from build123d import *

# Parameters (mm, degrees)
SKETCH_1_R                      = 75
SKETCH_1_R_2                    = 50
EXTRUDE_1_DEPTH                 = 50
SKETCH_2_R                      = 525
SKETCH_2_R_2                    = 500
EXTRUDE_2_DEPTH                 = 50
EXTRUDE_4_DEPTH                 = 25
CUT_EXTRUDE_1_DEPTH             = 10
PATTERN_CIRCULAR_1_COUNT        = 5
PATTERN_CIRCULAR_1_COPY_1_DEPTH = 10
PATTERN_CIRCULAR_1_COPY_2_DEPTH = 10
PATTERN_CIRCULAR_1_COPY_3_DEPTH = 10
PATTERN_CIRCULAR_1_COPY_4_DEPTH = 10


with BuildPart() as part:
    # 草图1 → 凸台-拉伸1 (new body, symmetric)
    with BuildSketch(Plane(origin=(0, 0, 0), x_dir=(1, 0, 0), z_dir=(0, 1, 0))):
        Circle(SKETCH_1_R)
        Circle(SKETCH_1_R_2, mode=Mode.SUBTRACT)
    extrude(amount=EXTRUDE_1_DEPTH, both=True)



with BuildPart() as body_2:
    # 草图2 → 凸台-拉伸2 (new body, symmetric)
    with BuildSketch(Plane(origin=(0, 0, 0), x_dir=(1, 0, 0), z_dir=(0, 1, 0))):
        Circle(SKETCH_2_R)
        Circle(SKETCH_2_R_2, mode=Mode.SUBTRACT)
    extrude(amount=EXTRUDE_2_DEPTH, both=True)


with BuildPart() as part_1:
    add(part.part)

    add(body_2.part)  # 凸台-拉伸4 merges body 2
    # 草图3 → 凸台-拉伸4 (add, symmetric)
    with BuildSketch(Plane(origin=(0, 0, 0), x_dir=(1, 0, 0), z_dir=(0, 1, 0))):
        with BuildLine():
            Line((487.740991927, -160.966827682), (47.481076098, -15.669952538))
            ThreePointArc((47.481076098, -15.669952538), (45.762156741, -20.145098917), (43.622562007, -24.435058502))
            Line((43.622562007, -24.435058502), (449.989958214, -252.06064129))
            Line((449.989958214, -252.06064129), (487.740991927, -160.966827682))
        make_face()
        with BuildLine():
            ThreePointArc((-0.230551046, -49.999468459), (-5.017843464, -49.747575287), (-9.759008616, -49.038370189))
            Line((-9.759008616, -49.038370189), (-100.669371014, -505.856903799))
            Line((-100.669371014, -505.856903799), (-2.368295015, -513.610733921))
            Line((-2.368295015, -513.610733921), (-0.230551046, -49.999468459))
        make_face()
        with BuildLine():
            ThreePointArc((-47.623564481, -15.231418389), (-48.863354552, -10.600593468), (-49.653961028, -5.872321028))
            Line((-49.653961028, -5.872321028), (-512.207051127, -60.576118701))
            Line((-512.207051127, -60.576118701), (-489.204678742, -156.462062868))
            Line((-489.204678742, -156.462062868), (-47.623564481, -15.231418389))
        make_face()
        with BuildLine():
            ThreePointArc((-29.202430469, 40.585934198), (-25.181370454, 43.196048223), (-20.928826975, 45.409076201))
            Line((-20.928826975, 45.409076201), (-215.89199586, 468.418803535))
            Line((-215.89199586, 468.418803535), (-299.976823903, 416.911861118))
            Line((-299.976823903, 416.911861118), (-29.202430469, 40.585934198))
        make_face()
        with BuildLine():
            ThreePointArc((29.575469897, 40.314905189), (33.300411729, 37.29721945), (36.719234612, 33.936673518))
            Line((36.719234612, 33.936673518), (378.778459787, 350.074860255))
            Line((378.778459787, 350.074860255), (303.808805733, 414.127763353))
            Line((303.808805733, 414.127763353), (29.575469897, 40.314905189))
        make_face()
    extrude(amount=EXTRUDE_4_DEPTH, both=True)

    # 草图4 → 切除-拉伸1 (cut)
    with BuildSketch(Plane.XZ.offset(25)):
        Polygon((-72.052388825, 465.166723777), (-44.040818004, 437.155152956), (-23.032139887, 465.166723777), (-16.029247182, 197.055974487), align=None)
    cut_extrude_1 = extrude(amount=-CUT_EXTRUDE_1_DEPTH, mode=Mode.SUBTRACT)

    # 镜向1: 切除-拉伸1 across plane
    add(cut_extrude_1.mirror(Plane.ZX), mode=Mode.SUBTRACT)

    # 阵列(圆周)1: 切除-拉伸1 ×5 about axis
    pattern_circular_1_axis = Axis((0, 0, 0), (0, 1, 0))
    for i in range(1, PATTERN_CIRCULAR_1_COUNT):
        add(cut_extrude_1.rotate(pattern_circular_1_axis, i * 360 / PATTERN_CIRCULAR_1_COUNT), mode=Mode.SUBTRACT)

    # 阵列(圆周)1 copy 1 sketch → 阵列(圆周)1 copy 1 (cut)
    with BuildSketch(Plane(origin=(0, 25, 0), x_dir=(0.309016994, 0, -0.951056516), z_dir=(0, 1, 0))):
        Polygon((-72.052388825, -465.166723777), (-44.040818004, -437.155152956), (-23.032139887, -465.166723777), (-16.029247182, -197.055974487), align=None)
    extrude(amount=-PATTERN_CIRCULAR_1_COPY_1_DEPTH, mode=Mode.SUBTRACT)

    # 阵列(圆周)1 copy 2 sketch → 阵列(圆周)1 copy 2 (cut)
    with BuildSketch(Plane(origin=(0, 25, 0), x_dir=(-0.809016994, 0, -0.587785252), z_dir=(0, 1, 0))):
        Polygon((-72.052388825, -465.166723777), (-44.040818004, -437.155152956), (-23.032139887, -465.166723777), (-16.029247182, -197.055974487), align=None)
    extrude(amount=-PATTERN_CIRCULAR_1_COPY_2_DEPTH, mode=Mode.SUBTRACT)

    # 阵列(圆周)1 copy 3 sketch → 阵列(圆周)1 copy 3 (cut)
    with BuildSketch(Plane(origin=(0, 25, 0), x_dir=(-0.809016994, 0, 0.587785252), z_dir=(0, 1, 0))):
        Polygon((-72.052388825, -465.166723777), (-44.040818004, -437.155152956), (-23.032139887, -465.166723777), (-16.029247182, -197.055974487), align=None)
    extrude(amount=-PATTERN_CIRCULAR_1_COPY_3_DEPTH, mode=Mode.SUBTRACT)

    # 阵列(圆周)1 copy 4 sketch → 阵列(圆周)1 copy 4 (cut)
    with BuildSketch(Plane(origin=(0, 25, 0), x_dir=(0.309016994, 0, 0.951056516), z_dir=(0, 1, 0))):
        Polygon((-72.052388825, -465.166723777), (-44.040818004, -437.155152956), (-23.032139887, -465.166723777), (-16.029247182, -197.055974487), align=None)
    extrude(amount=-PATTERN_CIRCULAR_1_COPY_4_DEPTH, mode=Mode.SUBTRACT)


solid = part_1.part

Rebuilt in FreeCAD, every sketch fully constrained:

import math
import FreeCAD as App
import Part
import Sketcher
Q = App.Units.Quantity


def add_polygon(sketch, points):
    """Adds a closed chain of lines whose ends are joined by coincident constraints."""
    first, n = sketch.GeometryCount, len(points)
    for a, b in zip(points, points[1:] + points[:1]):
        sketch.addGeometry(Part.LineSegment(App.Vector(*a, 0), App.Vector(*b, 0)), False)
    for i in range(n):
        sketch.addConstraint(Sketcher.Constraint("Coincident", first + i, 2, first + (i + 1) % n, 1))

doc = App.newDocument("Part")
params = doc.addObject("Spreadsheet::Sheet", "Params")
for row, (alias, value) in enumerate([
    ("sketch1_diameter", "150 mm"),
    ("sketch1_diameter2", "100 mm"),
    ("pad1_length", "100 mm"),
    ("sketch2_diameter", "1050 mm"),
    ("sketch2_diameter2", "1000 mm"),
    ("pad2_length", "100 mm"),
    ("sketch3_radius", "50 mm"),
    ("pad3_length", "50 mm"),
    ("pocket1_length", "10 mm"),
    ("pocket2_length", "10 mm"),
    ("pocket3_length", "10 mm"),
    ("pocket4_length", "10 mm"),
    ("pocket5_length", "10 mm"),
], start=1):
    params.set(f"A{row}", alias)
    params.set(f"B{row}", "=" + value)
    params.setAlias(f"B{row}", alias)

body = doc.addObject("PartDesign::Body", "Body")

# Sketch on XZ plane
sketch1 = doc.addObject("Sketcher::SketchObject", "Sketch")
body.addObject(sketch1)
sketch1.AttachmentSupport = (doc.XZ_Plane, [""])
sketch1.MapMode = "FlatFace"
sketch1.addGeometry(Part.Circle(App.Vector(0, 0, 0), App.Vector(0, 0, 1), 75), False)
sketch1.addGeometry(Part.Circle(App.Vector(0, 0, 0), App.Vector(0, 0, 1), 50), False)
sketch1.addConstraint(Sketcher.Constraint("Coincident", 0, 3, -1, 1))
sketch1.addConstraint(Sketcher.Constraint("Coincident", 1, 3, -1, 1))
sketch1.addConstraint(Sketcher.Constraint("Diameter", 0, Q("150 mm")))
sketch1.addConstraint(Sketcher.Constraint("Diameter", 1, Q("100 mm")))
sketch1.setExpression("Constraints[2]", "Params.sketch1_diameter")
sketch1.setExpression("Constraints[3]", "Params.sketch1_diameter2")
pad1 = doc.addObject("PartDesign::Pad", "Pad")
body.addObject(pad1)
pad1.Profile = sketch1
pad1.setExpression("Length", "Params.pad1_length")
pad1.Midplane = True
body2 = doc.addObject("PartDesign::Body", "Body001")

# Sketch on XZ plane
sketch2 = doc.addObject("Sketcher::SketchObject", "Sketch001")
body2.addObject(sketch2)
sketch2.AttachmentSupport = (doc.getObject("XZ_Plane001"), [""])
sketch2.MapMode = "FlatFace"
sketch2.addGeometry(Part.Circle(App.Vector(0, 0, 0), App.Vector(0, 0, 1), 525), False)
sketch2.addGeometry(Part.Circle(App.Vector(0, 0, 0), App.Vector(0, 0, 1), 500), False)
sketch2.addConstraint(Sketcher.Constraint("Coincident", 0, 3, -1, 1))
sketch2.addConstraint(Sketcher.Constraint("Coincident", 1, 3, -1, 1))
sketch2.addConstraint(Sketcher.Constraint("Diameter", 0, Q("1050 mm")))
sketch2.addConstraint(Sketcher.Constraint("Diameter", 1, Q("1000 mm")))
sketch2.setExpression("Constraints[2]", "Params.sketch2_diameter")
sketch2.setExpression("Constraints[3]", "Params.sketch2_diameter2")
pad2 = doc.addObject("PartDesign::Pad", "Pad001")
body2.addObject(pad2)
pad2.Profile = sketch2
pad2.setExpression("Length", "Params.pad2_length")
pad2.Midplane = True
body.AllowCompound = True
doc.recompute()

boolean = doc.addObject("PartDesign::Boolean", "Boolean")
body.addObject(boolean)
boolean.Type = "Fuse"
boolean.addObjects([body2])

# Sketch on XZ plane
sketch3 = doc.addObject("Sketcher::SketchObject", "Sketch002")
body.addObject(sketch3)
sketch3.AttachmentSupport = (doc.XZ_Plane, [""])
sketch3.MapMode = "FlatFace"
sketch3.addGeometry(Part.LineSegment(App.Vector(487.740992, 160.966828, 0), App.Vector(47.481076, 15.669953, 0)), False)
sketch3.addGeometry(Part.ArcOfCircle(Part.Circle(App.Vector(0, 0, 0), App.Vector(0, 0, 1), 50), math.radians(18.264193), math.radians(29.255249)), False)
sketch3.addGeometry(Part.LineSegment(App.Vector(43.622562, 24.435059, 0), App.Vector(449.989958, 252.060641, 0)), False)
sketch3.addGeometry(Part.LineSegment(App.Vector(449.989958, 252.060641, 0), App.Vector(487.740992, 160.966828, 0)), False)
sketch3.addGeometry(Part.ArcOfCircle(Part.Circle(App.Vector(0, 0, 0), App.Vector(0, 0, 1), 50), math.radians(90.264193), math.radians(101.255249)), False)
sketch3.addGeometry(Part.LineSegment(App.Vector(-9.759009, 49.03837, 0), App.Vector(-100.669371, 505.856904, 0)), False)
sketch3.addGeometry(Part.LineSegment(App.Vector(-100.669371, 505.856904, 0), App.Vector(-2.368295, 513.610734, 0)), False)
sketch3.addGeometry(Part.LineSegment(App.Vector(-2.368295, 513.610734, 0), App.Vector(-0.230551, 49.999468, 0)), False)
sketch3.addGeometry(Part.ArcOfCircle(Part.Circle(App.Vector(0, 0, 0), App.Vector(0, 0, 1), 50), math.radians(162.264193), math.radians(173.255249)), False)
sketch3.addGeometry(Part.LineSegment(App.Vector(-49.653961, 5.872321, 0), App.Vector(-512.207051, 60.576119, 0)), False)
sketch3.addGeometry(Part.LineSegment(App.Vector(-512.207051, 60.576119, 0), App.Vector(-489.204679, 156.462063, 0)), False)
sketch3.addGeometry(Part.LineSegment(App.Vector(-489.204679, 156.462063, 0), App.Vector(-47.623564, 15.231418, 0)), False)
sketch3.addGeometry(Part.ArcOfCircle(Part.Circle(App.Vector(0, 0, 0), App.Vector(0, 0, 1), 50), math.radians(-125.735807), math.radians(-114.744751)), False)
sketch3.addGeometry(Part.LineSegment(App.Vector(-20.928827, -45.409076, 0), App.Vector(-215.891996, -468.418804, 0)), False)
sketch3.addGeometry(Part.LineSegment(App.Vector(-215.891996, -468.418804, 0), App.Vector(-299.976824, -416.911861, 0)), False)
sketch3.addGeometry(Part.LineSegment(App.Vector(-299.976824, -416.911861, 0), App.Vector(-29.20243, -40.585934, 0)), False)
sketch3.addGeometry(Part.ArcOfCircle(Part.Circle(App.Vector(0, 0, 0), App.Vector(0, 0, 1), 50), math.radians(-53.735807), math.radians(-42.744751)), False)
sketch3.addGeometry(Part.LineSegment(App.Vector(36.719235, -33.936674, 0), App.Vector(378.77846, -350.07486, 0)), False)
sketch3.addGeometry(Part.LineSegment(App.Vector(378.77846, -350.07486, 0), App.Vector(303.808806, -414.127763, 0)), False)
sketch3.addGeometry(Part.LineSegment(App.Vector(303.808806, -414.127763, 0), App.Vector(29.57547, -40.314905, 0)), False)
sketch3.addConstraint(Sketcher.Constraint("Coincident", 0, 2, 1, 1))
sketch3.addConstraint(Sketcher.Constraint("Coincident", 1, 2, 2, 1))
sketch3.addConstraint(Sketcher.Constraint("Coincident", 2, 2, 3, 1))
sketch3.addConstraint(Sketcher.Constraint("Coincident", 3, 2, 0, 1))
sketch3.addConstraint(Sketcher.Constraint("Coincident", 4, 2, 5, 1))
sketch3.addConstraint(Sketcher.Constraint("Coincident", 5, 2, 6, 1))
sketch3.addConstraint(Sketcher.Constraint("Coincident", 6, 2, 7, 1))
sketch3.addConstraint(Sketcher.Constraint("Coincident", 7, 2, 4, 1))
sketch3.addConstraint(Sketcher.Constraint("Coincident", 8, 2, 9, 1))
sketch3.addConstraint(Sketcher.Constraint("Coincident", 9, 2, 10, 1))
sketch3.addConstraint(Sketcher.Constraint("Coincident", 10, 2, 11, 1))
sketch3.addConstraint(Sketcher.Constraint("Coincident", 11, 2, 8, 1))
sketch3.addConstraint(Sketcher.Constraint("Coincident", 12, 2, 13, 1))
sketch3.addConstraint(Sketcher.Constraint("Coincident", 13, 2, 14, 1))
sketch3.addConstraint(Sketcher.Constraint("Coincident", 14, 2, 15, 1))
sketch3.addConstraint(Sketcher.Constraint("Coincident", 15, 2, 12, 1))
sketch3.addConstraint(Sketcher.Constraint("Coincident", 16, 2, 17, 1))
sketch3.addConstraint(Sketcher.Constraint("Coincident", 17, 2, 18, 1))
sketch3.addConstraint(Sketcher.Constraint("Coincident", 18, 2, 19, 1))
sketch3.addConstraint(Sketcher.Constraint("Coincident", 19, 2, 16, 1))
sketch3.addConstraint(Sketcher.Constraint("Coincident", 1, 3, -1, 1))
sketch3.addConstraint(Sketcher.Constraint("Coincident", 4, 3, -1, 1))
sketch3.addConstraint(Sketcher.Constraint("Coincident", 8, 3, -1, 1))
sketch3.addConstraint(Sketcher.Constraint("Coincident", 12, 3, -1, 1))
sketch3.addConstraint(Sketcher.Constraint("Coincident", 16, 3, -1, 1))
sketch3.addConstraint(Sketcher.Constraint("Equal", 1, 4))
sketch3.addConstraint(Sketcher.Constraint("Equal", 4, 8))
sketch3.addConstraint(Sketcher.Constraint("Equal", 8, 12))
sketch3.addConstraint(Sketcher.Constraint("Equal", 12, 16))
sketch3.addConstraint(Sketcher.Constraint("Equal", 2, 5))
sketch3.addConstraint(Sketcher.Constraint("Equal", 3, 6))
sketch3.addConstraint(Sketcher.Constraint("Equal", 0, 7))
sketch3.addConstraint(Sketcher.Constraint("Equal", 5, 9))
sketch3.addConstraint(Sketcher.Constraint("Equal", 6, 10))
sketch3.addConstraint(Sketcher.Constraint("Equal", 7, 11))
sketch3.addConstraint(Sketcher.Constraint("Equal", 9, 13))
sketch3.addConstraint(Sketcher.Constraint("Equal", 10, 14))
sketch3.addConstraint(Sketcher.Constraint("Equal", 11, 15))
sketch3.addConstraint(Sketcher.Constraint("Equal", 13, 17))
sketch3.addConstraint(Sketcher.Constraint("Equal", 14, 18))
sketch3.addConstraint(Sketcher.Constraint("Equal", 15, 19))
sketch3.addConstraint(Sketcher.Constraint("Radius", 1, Q("50 mm")))
sketch3.addConstraint(Sketcher.Constraint("DistanceY", 4, 2, 7, 2, Q("0.961098 mm")))
sketch3.addConstraint(Sketcher.Constraint("DistanceX", 9, 2, 7, 2, Q("511.9765 mm")))
sketch3.addConstraint(Sketcher.Constraint("DistanceY", -1, 1, 1, 2, Q("24.435059 mm")))
sketch3.addConstraint(Sketcher.Constraint("DistanceX", -1, 1, 2, 2, Q("449.989958 mm")))
sketch3.addConstraint(Sketcher.Constraint("DistanceY", -1, 1, 2, 2, Q("252.060641 mm")))
sketch3.addConstraint(Sketcher.Constraint("DistanceX", -1, 1, 3, 2, Q("487.740992 mm")))
sketch3.addConstraint(Sketcher.Constraint("DistanceX", 5, 2, -1, 1, Q("100.669371 mm")))
sketch3.addConstraint(Sketcher.Constraint("DistanceX", 7, 2, -1, 1, Q("0.230551 mm")))
sketch3.addConstraint(Sketcher.Constraint("DistanceX", 8, 2, -1, 1, Q("49.653961 mm")))
sketch3.addConstraint(Sketcher.Constraint("DistanceX", 10, 2, -1, 1, Q("489.204679 mm")))
sketch3.addConstraint(Sketcher.Constraint("DistanceY", -1, 1, 11, 2, Q("15.231418 mm")))
sketch3.addConstraint(Sketcher.Constraint("DistanceY", 14, 2, -1, 1, Q("416.911861 mm")))
sketch3.addConstraint(Sketcher.Constraint("DistanceX", 15, 2, -1, 1, Q("29.20243 mm")))
sketch3.addConstraint(Sketcher.Constraint("DistanceX", -1, 1, 17, 2, Q("378.77846 mm")))
sketch3.addConstraint(Sketcher.Constraint("DistanceX", -1, 1, 19, 2, Q("29.57547 mm")))
sketch3.addConstraint(Sketcher.Constraint("DistanceY", 0, 2, 2, 2, Q("236.390689 mm")))
sketch3.addConstraint(Sketcher.Constraint("DistanceX", 13, 2, 12, 2, Q("194.963169 mm")))
sketch3.addConstraint(Sketcher.Constraint("DistanceX", 16, 2, 18, 2, Q("267.089571 mm")))
sketch3.setExpression("Constraints[41]", "Params.sketch3_radius")
pad3 = doc.addObject("PartDesign::Pad", "Pad002")
body.addObject(pad3)
pad3.Profile = sketch3
pad3.setExpression("Length", "Params.pad3_length")
pad3.Midplane = True

# Sketch on XZ plane
sketch4 = doc.addObject("Sketcher::SketchObject", "Sketch003")
body.addObject(sketch4)
sketch4.AttachmentSupport = (doc.XZ_Plane, [""])
sketch4.MapMode = "FlatFace"
sketch4.AttachmentOffset = App.Placement(App.Vector(0, 0, 25), App.Rotation())
add_polygon(sketch4, [(-44.040818, 437.155153), (-72.052389, 465.166724), (-16.029247, 197.055974), (-23.03214, 465.166724)])  # lines 0-3
sketch4.addConstraint(Sketcher.Constraint("Horizontal", 0, 2, 2, 2))
sketch4.addConstraint(Sketcher.Constraint("Angle", 0, Q("135 deg")))
sketch4.addConstraint(Sketcher.Constraint("Distance", 1, Q("273.901381 mm")))
sketch4.addConstraint(Sketcher.Constraint("Distance", 2, Q("268.202189 mm")))
sketch4.addConstraint(Sketcher.Constraint("DistanceX", 0, 2, -1, 1, Q("72.052389 mm")))
sketch4.addConstraint(Sketcher.Constraint("DistanceX", 2, 2, -1, 1, Q("23.03214 mm")))
sketch4.addConstraint(Sketcher.Constraint("DistanceX", 3, 2, -1, 1, Q("44.040818 mm")))
sketch4.addConstraint(Sketcher.Constraint("DistanceY", -1, 1, 0, 2, Q("465.166724 mm")))
pocket1 = doc.addObject("PartDesign::Pocket", "Pocket")
body.addObject(pocket1)
pocket1.Profile = sketch4
pocket1.setExpression("Length", "Params.pocket1_length")
doc.recompute()

mirrored = doc.addObject("PartDesign::Mirrored", "Mirrored")
body.addObject(mirrored)
mirrored.Originals = [pocket1]
mirrored.MirrorPlane = (doc.XZ_Plane, [""])
body.Tip = mirrored
doc.recompute()

polarpattern = doc.addObject("PartDesign::PolarPattern", "PolarPattern")
body.addObject(polarpattern)
polarpattern.Originals = [pocket1]
polarpattern.Axis = (doc.Y_Axis, [""])
polarpattern.Angle = 360
polarpattern.Occurrences = 5
body.Tip = polarpattern

# Sketch on XZ plane
sketch5 = doc.addObject("Sketcher::SketchObject", "Sketch004")
body.addObject(sketch5)
sketch5.AttachmentSupport = (doc.XZ_Plane, [""])
sketch5.MapMode = "FlatFace"
sketch5.AttachmentOffset = App.Placement(App.Vector(0, 0, -25), App.Rotation())
add_polygon(sketch5, [(420.134431, 212.270317), (402.149896, 176.973678), (435.282521, 165.649289), (182.458059, 76.138365)])  # lines 0-3
sketch5.addConstraint(Sketcher.Constraint("Angle", 0, Q("-117 deg")))
sketch5.addConstraint(Sketcher.Constraint("Distance", 2, Q("268.202189 mm")))
sketch5.addConstraint(Sketcher.Constraint("Distance", 3, Q("273.90138 mm")))
sketch5.addConstraint(Sketcher.Constraint("DistanceY", -1, 1, 0, 2, Q("176.973678 mm")))
sketch5.addConstraint(Sketcher.Constraint("DistanceX", -1, 1, 1, 2, Q("435.282521 mm")))
sketch5.addConstraint(Sketcher.Constraint("DistanceY", -1, 1, 1, 2, Q("165.649289 mm")))
sketch5.addConstraint(Sketcher.Constraint("DistanceX", -1, 1, 2, 2, Q("182.458059 mm")))
sketch5.addConstraint(Sketcher.Constraint("DistanceX", -1, 1, 3, 2, Q("420.134431 mm")))
pocket2 = doc.addObject("PartDesign::Pocket", "Pocket001")
body.addObject(pocket2)
pocket2.Profile = sketch5
pocket2.setExpression("Length", "Params.pocket2_length")
pocket2.Reversed = True

# Sketch on XZ plane
sketch6 = doc.addObject("Sketcher::SketchObject", "Sketch005")
body.addObject(sketch6)
sketch6.AttachmentSupport = (doc.XZ_Plane, [""])
sketch6.MapMode = "FlatFace"
sketch6.AttachmentOffset = App.Placement(App.Vector(0, 0, -25), App.Rotation())
add_polygon(sketch6, [(331.709747, -333.976453), (292.583122, -327.779404), (292.051533, -362.789832), (128.794529, -149.999877)])  # lines 0-3
sketch6.addConstraint(Sketcher.Constraint("Angle", 0, Q("171 deg")))
sketch6.addConstraint(Sketcher.Constraint("Distance", 2, Q("268.202189 mm")))
sketch6.addConstraint(Sketcher.Constraint("Distance", 3, Q("273.90138 mm")))
sketch6.addConstraint(Sketcher.Constraint("DistanceX", -1, 1, 0, 2, Q("292.583122 mm")))
sketch6.addConstraint(Sketcher.Constraint("DistanceX", -1, 1, 2, 2, Q("128.794529 mm")))
sketch6.addConstraint(Sketcher.Constraint("DistanceX", 1, 2, 0, 2, Q("0.531589 mm")))
sketch6.addConstraint(Sketcher.Constraint("DistanceY", 3, 2, 0, 2, Q("6.197049 mm")))
sketch6.addConstraint(Sketcher.Constraint("DistanceY", 0, 2, -1, 1, Q("327.779404 mm")))
pocket3 = doc.addObject("PartDesign::Pocket", "Pocket002")
body.addObject(pocket3)
pocket3.Profile = sketch6
pocket3.setExpression("Length", "Params.pocket3_length")
pocket3.Reversed = True

# Sketch on XZ plane
sketch7 = doc.addObject("Sketcher::SketchObject", "Sketch006")
body.addObject(sketch7)
sketch7.AttachmentSupport = (doc.XZ_Plane, [""])
sketch7.MapMode = "FlatFace"
sketch7.AttachmentOffset = App.Placement(App.Vector(0, 0, -25), App.Rotation())
add_polygon(sketch7, [(-215.126533, -418.679116), (-221.323582, -379.552491), (-254.784747, -389.865737), (-102.858662, -168.843387)])  # lines 0-3
sketch7.addConstraint(Sketcher.Constraint("Angle", 0, Q("99 deg")))
sketch7.addConstraint(Sketcher.Constraint("Distance", 2, Q("268.202189 mm")))
sketch7.addConstraint(Sketcher.Constraint("Distance", 3, Q("273.90138 mm")))
sketch7.addConstraint(Sketcher.Constraint("DistanceX", 0, 2, -1, 1, Q("221.323582 mm")))
sketch7.addConstraint(Sketcher.Constraint("DistanceY", 0, 2, -1, 1, Q("379.552491 mm")))
sketch7.addConstraint(Sketcher.Constraint("DistanceX", 0, 2, 2, 2, Q("118.464919 mm")))
sketch7.addConstraint(Sketcher.Constraint("DistanceY", 1, 2, 2, 2, Q("221.02235 mm")))
sketch7.addConstraint(Sketcher.Constraint("DistanceX", 0, 2, 3, 2, Q("6.197049 mm")))
pocket4 = doc.addObject("PartDesign::Pocket", "Pocket003")
body.addObject(pocket4)
pocket4.Profile = sketch7
pocket4.setExpression("Length", "Params.pocket4_length")
pocket4.Reversed = True

# Sketch on XZ plane
sketch8 = doc.addObject("Sketcher::SketchObject", "Sketch007")
body.addObject(sketch8)
sketch8.AttachmentSupport = (doc.XZ_Plane, [""])
sketch8.MapMode = "FlatFace"
sketch8.AttachmentOffset = App.Placement(App.Vector(0, 0, -25), App.Rotation())
add_polygon(sketch8, [(-464.665256, 75.218529), (-429.368618, 93.203064), (-449.517166, 121.839556), (-192.364678, 45.648925)])  # lines 0-3
sketch8.addConstraint(Sketcher.Constraint("Angle", 0, Q("27 deg")))
sketch8.addConstraint(Sketcher.Constraint("Distance", 2, Q("268.202189 mm")))
sketch8.addConstraint(Sketcher.Constraint("Distance", 3, Q("273.90138 mm")))
sketch8.addConstraint(Sketcher.Constraint("DistanceX", 2, 2, -1, 1, Q("192.364678 mm")))
sketch8.addConstraint(Sketcher.Constraint("DistanceY", -1, 1, 3, 2, Q("75.218529 mm")))
sketch8.addConstraint(Sketcher.Constraint("DistanceX", 1, 2, 0, 2, Q("20.148548 mm")))
sketch8.addConstraint(Sketcher.Constraint("DistanceY", 0, 2, 1, 2, Q("28.636492 mm")))
sketch8.addConstraint(Sketcher.Constraint("DistanceX", 0, 2, 2, 2, Q("237.00394 mm")))
pocket5 = doc.addObject("PartDesign::Pocket", "Pocket004")
body.addObject(pocket5)
pocket5.Profile = sketch8
pocket5.setExpression("Length", "Params.pocket5_length")
pocket5.Reversed = True

doc.recompute()
